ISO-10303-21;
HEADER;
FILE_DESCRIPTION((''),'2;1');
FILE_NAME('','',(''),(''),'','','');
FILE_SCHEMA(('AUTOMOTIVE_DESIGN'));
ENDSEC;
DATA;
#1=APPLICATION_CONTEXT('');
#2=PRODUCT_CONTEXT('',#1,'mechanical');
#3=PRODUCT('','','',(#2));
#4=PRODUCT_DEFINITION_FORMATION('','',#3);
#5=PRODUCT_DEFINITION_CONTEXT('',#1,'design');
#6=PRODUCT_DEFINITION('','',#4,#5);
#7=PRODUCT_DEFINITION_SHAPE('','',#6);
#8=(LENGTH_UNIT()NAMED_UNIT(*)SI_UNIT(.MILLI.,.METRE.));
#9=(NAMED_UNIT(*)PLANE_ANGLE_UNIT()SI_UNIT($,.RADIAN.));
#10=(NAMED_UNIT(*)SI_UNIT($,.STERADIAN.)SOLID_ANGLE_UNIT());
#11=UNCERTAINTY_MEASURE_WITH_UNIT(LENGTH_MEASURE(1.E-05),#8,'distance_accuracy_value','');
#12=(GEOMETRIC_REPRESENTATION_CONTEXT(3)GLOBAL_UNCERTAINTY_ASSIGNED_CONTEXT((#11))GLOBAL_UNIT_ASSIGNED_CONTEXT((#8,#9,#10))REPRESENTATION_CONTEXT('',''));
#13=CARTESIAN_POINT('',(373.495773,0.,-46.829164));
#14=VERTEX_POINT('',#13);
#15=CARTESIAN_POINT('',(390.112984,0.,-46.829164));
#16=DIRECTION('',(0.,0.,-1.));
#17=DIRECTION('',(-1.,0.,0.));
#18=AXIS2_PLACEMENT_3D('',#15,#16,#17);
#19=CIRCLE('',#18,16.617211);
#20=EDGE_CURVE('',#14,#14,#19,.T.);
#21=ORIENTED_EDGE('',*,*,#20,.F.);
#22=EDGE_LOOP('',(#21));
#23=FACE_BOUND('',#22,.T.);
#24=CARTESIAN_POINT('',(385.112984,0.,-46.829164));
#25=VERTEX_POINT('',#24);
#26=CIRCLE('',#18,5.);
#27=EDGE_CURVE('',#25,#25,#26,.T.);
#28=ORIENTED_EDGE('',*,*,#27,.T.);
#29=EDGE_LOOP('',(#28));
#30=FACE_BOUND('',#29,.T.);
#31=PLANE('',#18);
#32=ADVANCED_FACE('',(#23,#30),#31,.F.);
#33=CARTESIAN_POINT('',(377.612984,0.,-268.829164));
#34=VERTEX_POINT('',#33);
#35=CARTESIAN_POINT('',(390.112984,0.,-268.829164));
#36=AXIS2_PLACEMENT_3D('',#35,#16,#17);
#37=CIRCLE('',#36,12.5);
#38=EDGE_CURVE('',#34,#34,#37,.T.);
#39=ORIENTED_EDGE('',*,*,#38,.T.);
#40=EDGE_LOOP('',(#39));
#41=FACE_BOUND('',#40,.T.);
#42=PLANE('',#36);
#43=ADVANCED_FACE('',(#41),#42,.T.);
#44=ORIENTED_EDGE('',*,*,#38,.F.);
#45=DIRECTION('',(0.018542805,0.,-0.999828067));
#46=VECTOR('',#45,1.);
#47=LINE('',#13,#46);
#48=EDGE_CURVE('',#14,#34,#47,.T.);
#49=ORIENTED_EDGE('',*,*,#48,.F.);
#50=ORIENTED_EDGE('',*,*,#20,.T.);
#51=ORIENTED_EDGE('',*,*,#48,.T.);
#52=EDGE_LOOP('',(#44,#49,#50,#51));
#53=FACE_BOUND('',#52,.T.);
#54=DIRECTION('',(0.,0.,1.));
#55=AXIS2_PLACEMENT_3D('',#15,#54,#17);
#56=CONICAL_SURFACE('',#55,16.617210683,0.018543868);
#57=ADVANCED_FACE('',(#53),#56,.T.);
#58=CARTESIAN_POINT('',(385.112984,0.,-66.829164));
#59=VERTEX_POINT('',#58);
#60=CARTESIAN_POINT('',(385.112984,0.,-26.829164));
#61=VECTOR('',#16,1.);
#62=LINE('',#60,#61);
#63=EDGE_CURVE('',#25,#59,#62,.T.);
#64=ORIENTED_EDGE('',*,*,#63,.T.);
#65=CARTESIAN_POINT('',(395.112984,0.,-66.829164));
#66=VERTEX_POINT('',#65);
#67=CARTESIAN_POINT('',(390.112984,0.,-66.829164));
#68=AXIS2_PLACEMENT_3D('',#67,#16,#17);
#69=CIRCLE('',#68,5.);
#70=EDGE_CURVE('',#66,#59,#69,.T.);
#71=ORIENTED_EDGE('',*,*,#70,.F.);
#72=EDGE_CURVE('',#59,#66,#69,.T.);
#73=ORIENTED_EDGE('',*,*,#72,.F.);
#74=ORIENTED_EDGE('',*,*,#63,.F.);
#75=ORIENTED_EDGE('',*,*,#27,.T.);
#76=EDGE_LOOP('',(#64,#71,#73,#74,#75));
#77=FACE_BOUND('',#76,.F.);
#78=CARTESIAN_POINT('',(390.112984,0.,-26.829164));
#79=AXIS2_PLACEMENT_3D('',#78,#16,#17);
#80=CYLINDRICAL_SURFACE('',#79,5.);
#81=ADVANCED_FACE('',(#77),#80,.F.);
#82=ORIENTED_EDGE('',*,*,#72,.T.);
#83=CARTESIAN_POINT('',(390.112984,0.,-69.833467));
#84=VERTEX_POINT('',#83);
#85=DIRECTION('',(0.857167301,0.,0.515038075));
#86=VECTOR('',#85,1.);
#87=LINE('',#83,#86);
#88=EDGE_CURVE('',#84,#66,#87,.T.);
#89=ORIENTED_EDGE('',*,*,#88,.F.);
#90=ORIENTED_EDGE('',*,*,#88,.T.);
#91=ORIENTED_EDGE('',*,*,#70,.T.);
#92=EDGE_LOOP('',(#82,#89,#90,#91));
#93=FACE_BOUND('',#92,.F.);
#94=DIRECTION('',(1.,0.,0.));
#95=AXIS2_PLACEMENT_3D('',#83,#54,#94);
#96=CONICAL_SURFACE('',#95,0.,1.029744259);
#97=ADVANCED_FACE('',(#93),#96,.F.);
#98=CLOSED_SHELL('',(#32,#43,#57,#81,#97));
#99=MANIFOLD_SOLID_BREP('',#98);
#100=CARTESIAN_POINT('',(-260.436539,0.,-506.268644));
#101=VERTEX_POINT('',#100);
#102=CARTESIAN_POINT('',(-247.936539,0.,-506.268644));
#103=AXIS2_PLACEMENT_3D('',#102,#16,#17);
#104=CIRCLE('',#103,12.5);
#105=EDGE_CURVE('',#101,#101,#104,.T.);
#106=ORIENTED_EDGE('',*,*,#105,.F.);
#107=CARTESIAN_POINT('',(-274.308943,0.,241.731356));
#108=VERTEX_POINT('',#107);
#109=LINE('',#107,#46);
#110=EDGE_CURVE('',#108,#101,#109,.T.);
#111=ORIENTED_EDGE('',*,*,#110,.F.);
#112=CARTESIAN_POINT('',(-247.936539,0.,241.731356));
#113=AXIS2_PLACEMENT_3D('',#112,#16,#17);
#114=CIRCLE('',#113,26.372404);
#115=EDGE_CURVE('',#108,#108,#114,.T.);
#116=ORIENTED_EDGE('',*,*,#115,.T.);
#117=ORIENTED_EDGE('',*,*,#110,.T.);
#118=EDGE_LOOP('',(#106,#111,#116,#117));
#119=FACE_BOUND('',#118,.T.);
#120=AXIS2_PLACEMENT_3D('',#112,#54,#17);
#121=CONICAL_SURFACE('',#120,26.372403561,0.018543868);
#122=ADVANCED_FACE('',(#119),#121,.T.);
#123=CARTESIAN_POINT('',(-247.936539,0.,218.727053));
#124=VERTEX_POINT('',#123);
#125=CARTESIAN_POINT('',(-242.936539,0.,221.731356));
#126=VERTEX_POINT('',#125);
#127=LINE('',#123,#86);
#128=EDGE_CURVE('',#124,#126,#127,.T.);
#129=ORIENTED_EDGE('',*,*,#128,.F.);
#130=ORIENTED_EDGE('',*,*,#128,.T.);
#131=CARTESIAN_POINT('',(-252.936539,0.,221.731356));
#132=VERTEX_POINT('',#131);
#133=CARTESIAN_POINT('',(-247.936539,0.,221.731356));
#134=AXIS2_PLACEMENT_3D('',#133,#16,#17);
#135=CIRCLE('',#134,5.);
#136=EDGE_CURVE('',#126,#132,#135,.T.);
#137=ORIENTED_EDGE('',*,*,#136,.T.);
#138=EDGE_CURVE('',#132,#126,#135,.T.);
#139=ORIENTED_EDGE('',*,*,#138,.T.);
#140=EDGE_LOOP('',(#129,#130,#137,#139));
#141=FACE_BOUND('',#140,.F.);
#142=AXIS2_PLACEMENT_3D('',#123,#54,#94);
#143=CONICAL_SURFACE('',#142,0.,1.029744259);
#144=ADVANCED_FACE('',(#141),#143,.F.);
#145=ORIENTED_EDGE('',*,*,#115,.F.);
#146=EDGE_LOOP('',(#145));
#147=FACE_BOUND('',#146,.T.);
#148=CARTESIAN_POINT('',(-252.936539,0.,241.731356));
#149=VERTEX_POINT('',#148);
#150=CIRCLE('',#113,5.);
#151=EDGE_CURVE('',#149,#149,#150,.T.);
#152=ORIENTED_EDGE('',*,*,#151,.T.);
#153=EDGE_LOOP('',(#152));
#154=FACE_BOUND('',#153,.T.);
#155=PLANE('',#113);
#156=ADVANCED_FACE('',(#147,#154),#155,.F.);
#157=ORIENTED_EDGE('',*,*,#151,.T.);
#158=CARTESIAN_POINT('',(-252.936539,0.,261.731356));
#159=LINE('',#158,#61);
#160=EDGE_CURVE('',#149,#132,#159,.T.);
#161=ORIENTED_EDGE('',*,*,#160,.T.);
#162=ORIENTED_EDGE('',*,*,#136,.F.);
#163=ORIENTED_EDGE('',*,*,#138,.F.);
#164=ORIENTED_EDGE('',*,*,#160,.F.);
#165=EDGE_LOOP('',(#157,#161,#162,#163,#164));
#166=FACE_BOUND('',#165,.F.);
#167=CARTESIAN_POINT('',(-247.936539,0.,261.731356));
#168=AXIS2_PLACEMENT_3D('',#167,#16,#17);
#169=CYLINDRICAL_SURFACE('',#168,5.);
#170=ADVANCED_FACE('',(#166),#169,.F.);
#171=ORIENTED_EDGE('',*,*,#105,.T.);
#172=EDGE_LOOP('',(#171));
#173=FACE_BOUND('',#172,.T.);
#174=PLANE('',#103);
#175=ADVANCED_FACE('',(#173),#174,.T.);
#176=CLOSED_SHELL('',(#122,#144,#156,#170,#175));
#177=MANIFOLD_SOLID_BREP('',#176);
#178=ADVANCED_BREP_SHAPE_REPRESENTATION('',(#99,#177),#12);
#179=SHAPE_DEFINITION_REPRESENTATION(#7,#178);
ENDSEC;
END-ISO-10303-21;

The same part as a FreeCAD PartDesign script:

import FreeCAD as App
import Part
import Sketcher
Q = App.Units.Quantity

doc = App.newDocument("Part")
body = doc.addObject("PartDesign::Body", "Body")

sketch1 = body.newObject("Sketcher::SketchObject", "Sketch")
sketch1.AttachmentSupport = (doc.getObject("XZ_Plane"), [""])
sketch1.MapMode = "FlatFace"
sketch1.addGeometry([
    Part.LineSegment(App.Vector(-274, 242, 0), App.Vector(-260, -506, 0)),
    Part.LineSegment(App.Vector(-260, -506, 0), App.Vector(-248, -506, 0)),
    Part.LineSegment(App.Vector(-248, -506, 0), App.Vector(-248, 242, 0)),
    Part.LineSegment(App.Vector(-248, 242, 0), App.Vector(-274, 242, 0)),
], False)
sketch1.addGeometry(Part.LineSegment(App.Vector(-248, 242, 0), App.Vector(-248, -506, 0)), True)
sketch1.addConstraint([
    Sketcher.Constraint("Coincident", 0, 2, 1, 1),
    Sketcher.Constraint("Coincident", 1, 2, 2, 1),
    Sketcher.Constraint("Coincident", 2, 2, 3, 1),
    Sketcher.Constraint("Coincident", 3, 2, 0, 1),
    Sketcher.Constraint("Horizontal", 1),
    Sketcher.Constraint("Vertical", 2),
    Sketcher.Constraint("Horizontal", 3),
    Sketcher.Constraint("Vertical", 4),
    Sketcher.Constraint("Coincident", 4, 1, 2, 2),
    Sketcher.Constraint("Horizontal", 0, 2, 4, 2),
    Sketcher.Constraint("DistanceY", 2, 1, 2, 2, Q("748 mm")),
    Sketcher.Constraint("DistanceX", 1, 1, 1, 2, Q("12.5 mm")),
    Sketcher.Constraint("DistanceX", 3, 2, 3, 1, Q("26.372404 mm")),
    Sketcher.Constraint("DistanceX", 0, 2, -1, 1, Q("260.436539 mm")),
    Sketcher.Constraint("DistanceY", 0, 2, -1, 1, Q("506.268644 mm")),
])
revolution = body.newObject("PartDesign::Revolution", "Revolution")
revolution.Profile = sketch1
revolution.ReferenceAxis = (sketch1, ["Axis0"])
revolution.Angle = 360

sketch2 = body.newObject("Sketcher::SketchObject", "Sketch001")
sketch2.AttachmentSupport = (doc.getObject("XY_Plane"), [""])
sketch2.MapMode = "FlatFace"
sketch2.AttachmentOffset = App.Placement(App.Vector(0, 0, 241.731356), App.Rotation())
sketch2.addGeometry(Part.Circle(App.Vector(-248, 0, 0), App.Vector(0, 0, 1), 5), False)
sketch2.addConstraint([
    Sketcher.Constraint("PointOnObject", 0, 3, -1),
    Sketcher.Constraint("Diameter", 0, Q("10 mm")),
    Sketcher.Constraint("DistanceX", 0, 3, -1, 1, Q("247.936539 mm")),
])
doc.recompute()
hole = body.newObject("PartDesign::Hole", "Hole")
hole.Profile = sketch2
hole.ThreadType = "None"
hole.Diameter = 10
hole.DepthType = "Dimension"
hole.Depth = 20
hole.DrillPoint = "Angled"
hole.DrillPointAngle = 118
body2 = doc.addObject("PartDesign::Body", "Body001")

sketch3 = body2.newObject("Sketcher::SketchObject", "Sketch002")
sketch3.AttachmentSupport = (doc.getObject("XZ_Plane001"), [""])
sketch3.MapMode = "FlatFace"
sketch3.addGeometry([
    Part.LineSegment(App.Vector(373, -47, 0), App.Vector(378, -269, 0)),
    Part.LineSegment(App.Vector(378, -269, 0), App.Vector(390, -269, 0)),
    Part.LineSegment(App.Vector(390, -269, 0), App.Vector(390, -47, 0)),
    Part.LineSegment(App.Vector(390, -47, 0), App.Vector(373, -47, 0)),
], False)
sketch3.addGeometry(Part.LineSegment(App.Vector(390, -47, 0), App.Vector(390, -269, 0)), True)
sketch3.addConstraint([
    Sketcher.Constraint("Coincident", 0, 2, 1, 1),
    Sketcher.Constraint("Coincident", 1, 2, 2, 1),
    Sketcher.Constraint("Coincident", 2, 2, 3, 1),
    Sketcher.Constraint("Coincident", 3, 2, 0, 1),
    Sketcher.Constraint("Horizontal", 1),
    Sketcher.Constraint("Vertical", 2),
    Sketcher.Constraint("Horizontal", 3),
    Sketcher.Constraint("Vertical", 4),
    Sketcher.Constraint("Coincident", 4, 1, 2, 2),
    Sketcher.Constraint("Horizontal", 0, 2, 4, 2),
    Sketcher.Constraint("DistanceY", 2, 1, 2, 2, Q("222 mm")),
    Sketcher.Constraint("DistanceX", 1, 1, 1, 2, Q("12.5 mm")),
    Sketcher.Constraint("DistanceX", 3, 2, 3, 1, Q("16.617211 mm")),
    Sketcher.Constraint("DistanceX", -1, 1, 0, 2, Q("377.612984 mm")),
    Sketcher.Constraint("DistanceY", 0, 2, -1, 1, Q("268.829164 mm")),
])
revolution2 = body2.newObject("PartDesign::Revolution", "Revolution001")
revolution2.Profile = sketch3
revolution2.ReferenceAxis = (sketch3, ["Axis0"])
revolution2.Angle = 360

sketch4 = body2.newObject("Sketcher::SketchObject", "Sketch003")
sketch4.AttachmentSupport = (doc.getObject("XY_Plane001"), [""])
sketch4.MapMode = "FlatFace"
sketch4.AttachmentOffset = App.Placement(App.Vector(0, 0, -46.829164), App.Rotation())
sketch4.addGeometry(Part.Circle(App.Vector(390, 0, 0), App.Vector(0, 0, 1), 5), False)
sketch4.addConstraint([
    Sketcher.Constraint("PointOnObject", 0, 3, -1),
    Sketcher.Constraint("Diameter", 0, Q("10 mm")),
    Sketcher.Constraint("DistanceX", -1, 1, 0, 3, Q("390.112984 mm")),
])
doc.recompute()
hole2 = body2.newObject("PartDesign::Hole", "Hole001")
hole2.Profile = sketch4
hole2.ThreadType = "None"
hole2.Diameter = 10
hole2.DepthType = "Dimension"
hole2.Depth = 20
hole2.DrillPoint = "Angled"
hole2.DrillPointAngle = 118

doc.recompute()
